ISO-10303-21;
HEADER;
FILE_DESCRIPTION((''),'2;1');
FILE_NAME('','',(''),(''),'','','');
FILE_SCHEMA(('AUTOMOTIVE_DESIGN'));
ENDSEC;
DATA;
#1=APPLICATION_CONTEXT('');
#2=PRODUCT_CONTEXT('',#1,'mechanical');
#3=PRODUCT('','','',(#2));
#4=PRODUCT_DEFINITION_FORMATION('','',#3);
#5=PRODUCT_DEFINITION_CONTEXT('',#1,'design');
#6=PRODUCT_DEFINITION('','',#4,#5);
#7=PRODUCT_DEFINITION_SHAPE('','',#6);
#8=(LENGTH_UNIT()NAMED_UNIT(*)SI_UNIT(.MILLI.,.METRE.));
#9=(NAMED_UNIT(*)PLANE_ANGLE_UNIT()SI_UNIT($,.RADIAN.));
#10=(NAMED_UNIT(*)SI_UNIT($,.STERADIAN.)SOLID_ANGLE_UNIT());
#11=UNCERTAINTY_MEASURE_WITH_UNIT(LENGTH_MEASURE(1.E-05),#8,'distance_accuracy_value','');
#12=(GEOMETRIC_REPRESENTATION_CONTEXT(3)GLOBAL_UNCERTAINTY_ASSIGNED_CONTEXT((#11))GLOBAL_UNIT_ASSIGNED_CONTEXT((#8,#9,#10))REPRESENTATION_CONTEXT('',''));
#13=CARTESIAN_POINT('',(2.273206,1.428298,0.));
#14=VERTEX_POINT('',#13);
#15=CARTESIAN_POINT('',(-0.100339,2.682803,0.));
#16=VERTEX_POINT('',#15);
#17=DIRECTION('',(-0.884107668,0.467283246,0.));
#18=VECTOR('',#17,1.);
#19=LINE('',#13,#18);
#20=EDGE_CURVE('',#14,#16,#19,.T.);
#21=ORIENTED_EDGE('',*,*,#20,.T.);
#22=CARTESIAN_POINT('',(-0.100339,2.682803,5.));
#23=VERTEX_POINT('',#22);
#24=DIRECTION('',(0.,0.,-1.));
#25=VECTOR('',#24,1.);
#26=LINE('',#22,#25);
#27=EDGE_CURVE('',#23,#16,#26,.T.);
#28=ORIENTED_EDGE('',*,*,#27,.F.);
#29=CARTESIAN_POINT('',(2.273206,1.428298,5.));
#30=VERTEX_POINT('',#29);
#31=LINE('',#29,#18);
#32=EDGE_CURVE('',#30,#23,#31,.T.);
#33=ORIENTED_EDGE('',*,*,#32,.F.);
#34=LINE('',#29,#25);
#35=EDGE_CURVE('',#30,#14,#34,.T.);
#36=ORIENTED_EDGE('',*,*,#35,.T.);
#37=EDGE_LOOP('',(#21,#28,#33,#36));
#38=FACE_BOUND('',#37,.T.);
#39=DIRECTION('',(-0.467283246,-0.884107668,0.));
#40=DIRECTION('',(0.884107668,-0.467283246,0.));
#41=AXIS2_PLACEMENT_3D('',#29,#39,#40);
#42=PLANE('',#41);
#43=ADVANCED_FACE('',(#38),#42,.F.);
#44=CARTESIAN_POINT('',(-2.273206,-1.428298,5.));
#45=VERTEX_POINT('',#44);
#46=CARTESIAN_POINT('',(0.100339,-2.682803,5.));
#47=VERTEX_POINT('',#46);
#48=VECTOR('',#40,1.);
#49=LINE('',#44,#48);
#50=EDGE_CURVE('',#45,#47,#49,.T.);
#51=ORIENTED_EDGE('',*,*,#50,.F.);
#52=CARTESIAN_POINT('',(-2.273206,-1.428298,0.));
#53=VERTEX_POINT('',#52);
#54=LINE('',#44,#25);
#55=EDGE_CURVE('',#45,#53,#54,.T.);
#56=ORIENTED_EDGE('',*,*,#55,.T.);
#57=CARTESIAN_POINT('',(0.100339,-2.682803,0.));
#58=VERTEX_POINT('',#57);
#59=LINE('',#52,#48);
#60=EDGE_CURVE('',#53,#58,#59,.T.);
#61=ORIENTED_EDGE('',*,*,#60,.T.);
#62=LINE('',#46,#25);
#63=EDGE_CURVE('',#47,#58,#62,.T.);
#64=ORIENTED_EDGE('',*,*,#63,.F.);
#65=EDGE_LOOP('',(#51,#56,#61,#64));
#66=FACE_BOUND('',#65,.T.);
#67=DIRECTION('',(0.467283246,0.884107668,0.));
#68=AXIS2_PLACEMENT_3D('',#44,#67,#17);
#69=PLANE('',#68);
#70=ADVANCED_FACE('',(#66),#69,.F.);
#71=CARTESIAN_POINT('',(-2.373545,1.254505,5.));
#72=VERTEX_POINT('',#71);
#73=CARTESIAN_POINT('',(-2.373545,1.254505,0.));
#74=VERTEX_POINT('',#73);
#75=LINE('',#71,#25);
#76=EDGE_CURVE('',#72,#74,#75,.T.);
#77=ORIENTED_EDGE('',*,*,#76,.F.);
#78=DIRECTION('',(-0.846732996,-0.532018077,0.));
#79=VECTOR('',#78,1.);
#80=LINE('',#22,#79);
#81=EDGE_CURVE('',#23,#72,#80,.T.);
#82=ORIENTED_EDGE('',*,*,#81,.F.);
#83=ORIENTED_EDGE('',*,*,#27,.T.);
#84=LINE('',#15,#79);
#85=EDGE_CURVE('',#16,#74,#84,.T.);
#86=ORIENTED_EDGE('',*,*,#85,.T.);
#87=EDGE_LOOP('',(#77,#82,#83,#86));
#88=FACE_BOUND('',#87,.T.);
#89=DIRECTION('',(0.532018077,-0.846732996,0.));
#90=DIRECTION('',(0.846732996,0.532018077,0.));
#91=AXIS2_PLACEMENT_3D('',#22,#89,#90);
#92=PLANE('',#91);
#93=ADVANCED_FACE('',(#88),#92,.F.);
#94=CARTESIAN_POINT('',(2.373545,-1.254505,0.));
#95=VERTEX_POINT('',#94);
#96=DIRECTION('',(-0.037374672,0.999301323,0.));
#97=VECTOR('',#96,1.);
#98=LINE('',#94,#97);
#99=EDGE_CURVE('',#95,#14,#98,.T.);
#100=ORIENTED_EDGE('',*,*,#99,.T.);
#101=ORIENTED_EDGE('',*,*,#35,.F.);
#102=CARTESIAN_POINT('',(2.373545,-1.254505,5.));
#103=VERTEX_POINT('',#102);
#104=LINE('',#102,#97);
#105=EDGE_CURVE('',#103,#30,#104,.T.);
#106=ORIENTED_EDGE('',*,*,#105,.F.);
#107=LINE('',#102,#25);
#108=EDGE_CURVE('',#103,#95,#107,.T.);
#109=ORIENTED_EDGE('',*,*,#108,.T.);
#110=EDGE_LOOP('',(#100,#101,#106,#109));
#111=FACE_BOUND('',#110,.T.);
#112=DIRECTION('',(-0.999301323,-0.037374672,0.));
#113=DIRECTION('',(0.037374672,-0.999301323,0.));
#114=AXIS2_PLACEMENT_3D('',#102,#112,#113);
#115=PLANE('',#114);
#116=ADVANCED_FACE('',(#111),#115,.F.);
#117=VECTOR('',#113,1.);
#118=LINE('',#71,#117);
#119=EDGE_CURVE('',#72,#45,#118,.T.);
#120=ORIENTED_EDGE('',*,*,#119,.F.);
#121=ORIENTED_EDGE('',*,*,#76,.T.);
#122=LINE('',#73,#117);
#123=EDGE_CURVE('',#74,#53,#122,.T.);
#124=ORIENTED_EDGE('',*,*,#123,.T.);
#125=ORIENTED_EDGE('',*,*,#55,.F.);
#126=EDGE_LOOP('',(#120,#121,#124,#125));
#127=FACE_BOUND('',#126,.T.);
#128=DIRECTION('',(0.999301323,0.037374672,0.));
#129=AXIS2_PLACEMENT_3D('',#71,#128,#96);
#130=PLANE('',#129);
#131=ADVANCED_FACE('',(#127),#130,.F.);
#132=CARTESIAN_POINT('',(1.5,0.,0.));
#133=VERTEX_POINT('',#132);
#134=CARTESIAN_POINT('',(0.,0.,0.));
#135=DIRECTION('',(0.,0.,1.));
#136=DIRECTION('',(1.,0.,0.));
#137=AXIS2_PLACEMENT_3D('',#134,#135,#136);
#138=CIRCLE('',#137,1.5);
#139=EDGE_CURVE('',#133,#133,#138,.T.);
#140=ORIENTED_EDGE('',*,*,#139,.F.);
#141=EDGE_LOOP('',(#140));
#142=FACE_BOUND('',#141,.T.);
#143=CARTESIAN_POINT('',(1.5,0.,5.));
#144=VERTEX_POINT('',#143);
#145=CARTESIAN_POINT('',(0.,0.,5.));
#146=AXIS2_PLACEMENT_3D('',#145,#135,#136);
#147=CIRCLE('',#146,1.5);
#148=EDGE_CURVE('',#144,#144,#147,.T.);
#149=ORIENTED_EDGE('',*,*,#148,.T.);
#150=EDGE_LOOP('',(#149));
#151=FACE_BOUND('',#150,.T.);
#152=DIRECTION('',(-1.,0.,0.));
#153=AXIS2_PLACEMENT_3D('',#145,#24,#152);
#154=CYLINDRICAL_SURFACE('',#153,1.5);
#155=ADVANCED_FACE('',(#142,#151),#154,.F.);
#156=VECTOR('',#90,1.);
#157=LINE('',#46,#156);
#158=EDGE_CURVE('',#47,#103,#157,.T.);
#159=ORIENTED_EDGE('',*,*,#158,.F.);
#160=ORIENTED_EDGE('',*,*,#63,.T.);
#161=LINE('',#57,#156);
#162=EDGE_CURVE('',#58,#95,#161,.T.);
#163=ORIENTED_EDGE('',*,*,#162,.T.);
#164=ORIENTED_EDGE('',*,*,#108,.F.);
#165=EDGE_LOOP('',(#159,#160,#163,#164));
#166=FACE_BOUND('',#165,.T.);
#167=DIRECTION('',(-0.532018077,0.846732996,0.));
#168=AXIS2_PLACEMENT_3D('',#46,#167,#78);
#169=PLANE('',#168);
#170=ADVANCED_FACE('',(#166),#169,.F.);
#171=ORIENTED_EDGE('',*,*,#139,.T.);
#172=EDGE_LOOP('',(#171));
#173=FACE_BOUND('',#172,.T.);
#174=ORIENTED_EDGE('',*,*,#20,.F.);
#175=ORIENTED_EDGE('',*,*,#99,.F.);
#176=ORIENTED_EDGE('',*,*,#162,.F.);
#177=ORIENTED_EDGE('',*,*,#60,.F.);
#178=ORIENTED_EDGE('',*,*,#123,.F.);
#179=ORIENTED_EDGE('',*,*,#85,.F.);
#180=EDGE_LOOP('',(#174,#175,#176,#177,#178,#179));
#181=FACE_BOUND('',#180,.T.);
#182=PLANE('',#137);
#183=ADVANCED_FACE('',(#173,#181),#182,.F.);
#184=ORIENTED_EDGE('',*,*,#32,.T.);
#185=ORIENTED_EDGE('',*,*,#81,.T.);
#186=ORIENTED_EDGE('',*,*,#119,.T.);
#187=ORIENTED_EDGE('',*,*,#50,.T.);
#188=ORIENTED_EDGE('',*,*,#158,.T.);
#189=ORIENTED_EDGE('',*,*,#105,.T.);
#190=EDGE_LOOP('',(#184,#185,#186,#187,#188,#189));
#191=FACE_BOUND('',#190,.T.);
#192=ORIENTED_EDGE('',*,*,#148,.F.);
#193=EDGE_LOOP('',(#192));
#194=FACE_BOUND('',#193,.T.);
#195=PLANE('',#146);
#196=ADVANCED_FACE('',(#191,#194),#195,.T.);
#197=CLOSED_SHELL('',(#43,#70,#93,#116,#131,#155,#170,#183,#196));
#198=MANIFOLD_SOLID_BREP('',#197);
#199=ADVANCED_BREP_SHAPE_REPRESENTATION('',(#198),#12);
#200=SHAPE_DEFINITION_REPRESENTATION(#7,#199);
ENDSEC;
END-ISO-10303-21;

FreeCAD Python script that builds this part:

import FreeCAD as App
import Part
import Sketcher

V = App.Vector


def add_polygon(sketch, points):
    """Adds a closed chain of lines whose ends are joined by coincident constraints."""
    first, n = sketch.GeometryCount, len(points)
    for a, b in zip(points, points[1:] + points[:1]):
        sketch.addGeometry(Part.LineSegment(App.Vector(*a, 0), App.Vector(*b, 0)), False)
    for i in range(n):
        sketch.addConstraint(Sketcher.Constraint("Coincident", first + i, 2, first + (i + 1) % n, 1))

doc = App.newDocument("Part")
body = doc.addObject("PartDesign::Body", "Body")

sketch1 = body.newObject("Sketcher::SketchObject", "Sketch")
sketch1.AttachmentSupport = (doc.getObject("XY_Plane"), [""])
sketch1.MapMode = "FlatFace"
add_polygon(sketch1, [(2.273206, 1.428298), (-0.100339, 2.682803), (-2.373545, 1.254505), (-2.273206, -1.428298), (0.100339, -2.682803), (2.373545, -1.254505)])
sketch1.addGeometry(Part.Circle(V(0, 0, 0), V(0, 0, 1), 1.5), False)
sketch1.addConstraint([
    Sketcher.Constraint("Coincident", 6, 3, -1, 1),
    Sketcher.Constraint("Symmetric", 0, 2, 3, 2, -1, 1),
    Sketcher.Constraint("Symmetric", 1, 2, 4, 2, -1, 1),
    Sketcher.Constraint("Symmetric", 2, 2, 5, 2, -1, 1),
    Sketcher.Constraint("Equal", 0, 1),
    Sketcher.Constraint("Equal", 1, 2),
    Sketcher.Constraint("Diameter", 6, 3.0),
    Sketcher.Constraint("DistanceY", 2, 2, 0, 2, 4.111101),
    Sketcher.Constraint("Distance", 0, 2.684679),
    Sketcher.Constraint("DistanceX", 0, 2, -1, 1, 0.100339),
    Sketcher.Constraint("DistanceX", 1, 2, 2, 2, 0.100339),
])
pad1 = body.newObject("PartDesign::Pad", "Pad")
pad1.Profile = sketch1
pad1.Length = 5

doc.recompute()
